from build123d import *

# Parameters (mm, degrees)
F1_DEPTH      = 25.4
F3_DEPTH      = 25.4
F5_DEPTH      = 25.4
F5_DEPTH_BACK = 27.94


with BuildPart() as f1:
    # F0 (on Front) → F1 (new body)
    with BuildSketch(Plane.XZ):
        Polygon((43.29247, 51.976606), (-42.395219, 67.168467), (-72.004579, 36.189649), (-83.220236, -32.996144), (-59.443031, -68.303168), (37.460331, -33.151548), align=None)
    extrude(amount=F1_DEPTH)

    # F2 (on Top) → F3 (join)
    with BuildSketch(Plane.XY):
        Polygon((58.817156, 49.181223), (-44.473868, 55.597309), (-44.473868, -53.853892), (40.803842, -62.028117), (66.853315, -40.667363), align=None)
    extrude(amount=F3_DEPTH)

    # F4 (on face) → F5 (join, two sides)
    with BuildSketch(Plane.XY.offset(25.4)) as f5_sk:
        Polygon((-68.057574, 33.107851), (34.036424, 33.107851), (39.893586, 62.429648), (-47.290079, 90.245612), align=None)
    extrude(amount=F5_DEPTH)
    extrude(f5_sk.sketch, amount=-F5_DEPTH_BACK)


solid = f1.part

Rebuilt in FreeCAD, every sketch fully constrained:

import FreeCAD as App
import Part
import Sketcher
from FreeCAD import Vector
Q = App.Units.Quantity

doc = App.newDocument("Part")
body = doc.addObject("PartDesign::Body", "Body")

sketch1 = body.newObject("Sketcher::SketchObject", "Sketch")
sketch1.AttachmentSupport = (doc.getObject("XZ_Plane"), [""])
sketch1.MapMode = "FlatFace"
sketch1.addGeometry([
    Part.LineSegment(Vector(43.29247, 51.976606, 0), Vector(-42.395219, 67.168467, 0)),
    Part.LineSegment(Vector(-42.395219, 67.168467, 0), Vector(-72.004579, 36.189649, 0)),
    Part.LineSegment(Vector(-72.004579, 36.189649, 0), Vector(-83.220236, -32.996144, 0)),
    Part.LineSegment(Vector(-83.220236, -32.996144, 0), Vector(-59.443031, -68.303168, 0)),
    Part.LineSegment(Vector(-59.443031, -68.303168, 0), Vector(37.460331, -33.151548, 0)),
    Part.LineSegment(Vector(37.460331, -33.151548, 0), Vector(43.29247, 51.976606, 0)),
], False)
sketch1.addConstraint([
    Sketcher.Constraint("Coincident", 0, 2, 1, 1),
    Sketcher.Constraint("Coincident", 1, 2, 2, 1),
    Sketcher.Constraint("Coincident", 2, 2, 3, 1),
    Sketcher.Constraint("Coincident", 3, 2, 4, 1),
    Sketcher.Constraint("Coincident", 4, 2, 5, 1),
    Sketcher.Constraint("Coincident", 5, 2, 0, 1),
    Sketcher.Constraint("Distance", 5, Q("85.3277 mm")),
    Sketcher.Constraint("DistanceX", 3, 2, 5, 2, Q("102.735501 mm")),
    Sketcher.Constraint("Distance", 2, Q("70.088979 mm")),
    Sketcher.Constraint("DistanceX", 0, 2, -1, 1, Q("42.395219 mm")),
    Sketcher.Constraint("DistanceX", 1, 2, -1, 1, Q("72.004579 mm")),
    Sketcher.Constraint("DistanceY", -1, 1, 1, 2, Q("36.189649 mm")),
    Sketcher.Constraint("DistanceX", 3, 2, -1, 1, Q("59.443031 mm")),
    Sketcher.Constraint("DistanceY", 3, 2, -1, 1, Q("68.303168 mm")),
    Sketcher.Constraint("DistanceX", -1, 1, 4, 2, Q("37.460331 mm")),
    Sketcher.Constraint("DistanceY", 1, 2, 0, 2, Q("30.978818 mm")),
    Sketcher.Constraint("DistanceY", 2, 2, 0, 2, Q("100.164611 mm")),
    Sketcher.Constraint("DistanceY", 3, 2, 4, 2, Q("35.15162 mm")),
])
pad1 = body.newObject("PartDesign::Pad", "Pad")
pad1.Profile = sketch1
pad1.Length = Q("1 in")

sketch2 = body.newObject("Sketcher::SketchObject", "Sketch001")
sketch2.AttachmentSupport = (doc.getObject("XY_Plane"), [""])
sketch2.MapMode = "FlatFace"
sketch2.addGeometry([
    Part.LineSegment(Vector(58.817156, 49.181223, 0), Vector(-44.473868, 55.597309, 0)),
    Part.LineSegment(Vector(-44.473868, 55.597309, 0), Vector(-44.473868, -53.853892, 0)),
    Part.LineSegment(Vector(-44.473868, -53.853892, 0), Vector(40.803842, -62.028117, 0)),
    Part.LineSegment(Vector(40.803842, -62.028117, 0), Vector(66.853315, -40.667363, 0)),
    Part.LineSegment(Vector(66.853315, -40.667363, 0), Vector(58.817156, 49.181223, 0)),
], False)
sketch2.addConstraint([
    Sketcher.Constraint("Coincident", 0, 2, 1, 1),
    Sketcher.Constraint("Coincident", 1, 2, 2, 1),
    Sketcher.Constraint("Coincident", 2, 2, 3, 1),
    Sketcher.Constraint("Coincident", 3, 2, 4, 1),
    Sketcher.Constraint("Coincident", 4, 2, 0, 1),
    Sketcher.Constraint("Vertical", 1),
    Sketcher.Constraint("DistanceY", 1, 2, 1, 1, Q("109.451201 mm")),
    Sketcher.Constraint("Distance", 2, Q("85.668581 mm")),
    Sketcher.Constraint("Distance", 4, Q("90.207252 mm")),
    Sketcher.Constraint("DistanceX", 0, 2, -1, 1, Q("44.473868 mm")),
    Sketcher.Constraint("DistanceY", -1, 1, 0, 2, Q("55.597309 mm")),
    Sketcher.Constraint("DistanceX", 1, 2, 2, 2, Q("85.27771 mm")),
    Sketcher.Constraint("DistanceY", 1, 2, 3, 2, Q("13.186529 mm")),
    Sketcher.Constraint("DistanceX", 4, 2, 3, 2, Q("8.036159 mm")),
    Sketcher.Constraint("Distance", 0, Q("103.490105 mm")),
])
pad2 = body.newObject("PartDesign::Pad", "Pad001")
pad2.Profile = sketch2
pad2.Length = Q("1 in")

sketch3 = body.newObject("Sketcher::SketchObject", "Sketch002")
sketch3.AttachmentSupport = (doc.getObject("XY_Plane"), [""])
sketch3.MapMode = "FlatFace"
sketch3.AttachmentOffset = App.Placement(Vector(0, 0, 1 * 25.4), App.Rotation())
sketch3.addGeometry([
    Part.LineSegment(Vector(-68.057574, 33.107851, 0), Vector(34.036424, 33.107851, 0)),
    Part.LineSegment(Vector(34.036424, 33.107851, 0), Vector(39.893586, 62.429648, 0)),
    Part.LineSegment(Vector(39.893586, 62.429648, 0), Vector(-47.290079, 90.245612, 0)),
    Part.LineSegment(Vector(-47.290079, 90.245612, 0), Vector(-68.057574, 33.107851, 0)),
], False)
sketch3.addConstraint([
    Sketcher.Constraint("Coincident", 0, 2, 1, 1),
    Sketcher.Constraint("Coincident", 1, 2, 2, 1),
    Sketcher.Constraint("Coincident", 2, 2, 3, 1),
    Sketcher.Constraint("Coincident", 3, 2, 0, 1),
    Sketcher.Constraint("Horizontal", 0),
    Sketcher.Constraint("DistanceX", 0, 1, 0, 2, Q("102.093998 mm")),
    Sketcher.Constraint("Distance", 3, Q("60.79484 mm")),
    Sketcher.Constraint("DistanceY", -1, 1, 0, 2, Q("33.107851 mm")),
    Sketcher.Constraint("DistanceX", 2, 2, -1, 1, Q("47.290079 mm")),
    Sketcher.Constraint("DistanceY", -1, 1, 2, 2, Q("90.245612 mm")),
    Sketcher.Constraint("DistanceX", 3, 2, 1, 2, Q("107.95116 mm")),
    Sketcher.Constraint("Distance", 1, Q("29.901072 mm")),
])
pad3 = body.newObject("PartDesign::Pad", "Pad002")
pad3.Profile = sketch3
pad3.Type = "TwoLengths"
pad3.Length = Q("1 in")
pad3.Length2 = Q("1.1 in")

doc.recompute()
